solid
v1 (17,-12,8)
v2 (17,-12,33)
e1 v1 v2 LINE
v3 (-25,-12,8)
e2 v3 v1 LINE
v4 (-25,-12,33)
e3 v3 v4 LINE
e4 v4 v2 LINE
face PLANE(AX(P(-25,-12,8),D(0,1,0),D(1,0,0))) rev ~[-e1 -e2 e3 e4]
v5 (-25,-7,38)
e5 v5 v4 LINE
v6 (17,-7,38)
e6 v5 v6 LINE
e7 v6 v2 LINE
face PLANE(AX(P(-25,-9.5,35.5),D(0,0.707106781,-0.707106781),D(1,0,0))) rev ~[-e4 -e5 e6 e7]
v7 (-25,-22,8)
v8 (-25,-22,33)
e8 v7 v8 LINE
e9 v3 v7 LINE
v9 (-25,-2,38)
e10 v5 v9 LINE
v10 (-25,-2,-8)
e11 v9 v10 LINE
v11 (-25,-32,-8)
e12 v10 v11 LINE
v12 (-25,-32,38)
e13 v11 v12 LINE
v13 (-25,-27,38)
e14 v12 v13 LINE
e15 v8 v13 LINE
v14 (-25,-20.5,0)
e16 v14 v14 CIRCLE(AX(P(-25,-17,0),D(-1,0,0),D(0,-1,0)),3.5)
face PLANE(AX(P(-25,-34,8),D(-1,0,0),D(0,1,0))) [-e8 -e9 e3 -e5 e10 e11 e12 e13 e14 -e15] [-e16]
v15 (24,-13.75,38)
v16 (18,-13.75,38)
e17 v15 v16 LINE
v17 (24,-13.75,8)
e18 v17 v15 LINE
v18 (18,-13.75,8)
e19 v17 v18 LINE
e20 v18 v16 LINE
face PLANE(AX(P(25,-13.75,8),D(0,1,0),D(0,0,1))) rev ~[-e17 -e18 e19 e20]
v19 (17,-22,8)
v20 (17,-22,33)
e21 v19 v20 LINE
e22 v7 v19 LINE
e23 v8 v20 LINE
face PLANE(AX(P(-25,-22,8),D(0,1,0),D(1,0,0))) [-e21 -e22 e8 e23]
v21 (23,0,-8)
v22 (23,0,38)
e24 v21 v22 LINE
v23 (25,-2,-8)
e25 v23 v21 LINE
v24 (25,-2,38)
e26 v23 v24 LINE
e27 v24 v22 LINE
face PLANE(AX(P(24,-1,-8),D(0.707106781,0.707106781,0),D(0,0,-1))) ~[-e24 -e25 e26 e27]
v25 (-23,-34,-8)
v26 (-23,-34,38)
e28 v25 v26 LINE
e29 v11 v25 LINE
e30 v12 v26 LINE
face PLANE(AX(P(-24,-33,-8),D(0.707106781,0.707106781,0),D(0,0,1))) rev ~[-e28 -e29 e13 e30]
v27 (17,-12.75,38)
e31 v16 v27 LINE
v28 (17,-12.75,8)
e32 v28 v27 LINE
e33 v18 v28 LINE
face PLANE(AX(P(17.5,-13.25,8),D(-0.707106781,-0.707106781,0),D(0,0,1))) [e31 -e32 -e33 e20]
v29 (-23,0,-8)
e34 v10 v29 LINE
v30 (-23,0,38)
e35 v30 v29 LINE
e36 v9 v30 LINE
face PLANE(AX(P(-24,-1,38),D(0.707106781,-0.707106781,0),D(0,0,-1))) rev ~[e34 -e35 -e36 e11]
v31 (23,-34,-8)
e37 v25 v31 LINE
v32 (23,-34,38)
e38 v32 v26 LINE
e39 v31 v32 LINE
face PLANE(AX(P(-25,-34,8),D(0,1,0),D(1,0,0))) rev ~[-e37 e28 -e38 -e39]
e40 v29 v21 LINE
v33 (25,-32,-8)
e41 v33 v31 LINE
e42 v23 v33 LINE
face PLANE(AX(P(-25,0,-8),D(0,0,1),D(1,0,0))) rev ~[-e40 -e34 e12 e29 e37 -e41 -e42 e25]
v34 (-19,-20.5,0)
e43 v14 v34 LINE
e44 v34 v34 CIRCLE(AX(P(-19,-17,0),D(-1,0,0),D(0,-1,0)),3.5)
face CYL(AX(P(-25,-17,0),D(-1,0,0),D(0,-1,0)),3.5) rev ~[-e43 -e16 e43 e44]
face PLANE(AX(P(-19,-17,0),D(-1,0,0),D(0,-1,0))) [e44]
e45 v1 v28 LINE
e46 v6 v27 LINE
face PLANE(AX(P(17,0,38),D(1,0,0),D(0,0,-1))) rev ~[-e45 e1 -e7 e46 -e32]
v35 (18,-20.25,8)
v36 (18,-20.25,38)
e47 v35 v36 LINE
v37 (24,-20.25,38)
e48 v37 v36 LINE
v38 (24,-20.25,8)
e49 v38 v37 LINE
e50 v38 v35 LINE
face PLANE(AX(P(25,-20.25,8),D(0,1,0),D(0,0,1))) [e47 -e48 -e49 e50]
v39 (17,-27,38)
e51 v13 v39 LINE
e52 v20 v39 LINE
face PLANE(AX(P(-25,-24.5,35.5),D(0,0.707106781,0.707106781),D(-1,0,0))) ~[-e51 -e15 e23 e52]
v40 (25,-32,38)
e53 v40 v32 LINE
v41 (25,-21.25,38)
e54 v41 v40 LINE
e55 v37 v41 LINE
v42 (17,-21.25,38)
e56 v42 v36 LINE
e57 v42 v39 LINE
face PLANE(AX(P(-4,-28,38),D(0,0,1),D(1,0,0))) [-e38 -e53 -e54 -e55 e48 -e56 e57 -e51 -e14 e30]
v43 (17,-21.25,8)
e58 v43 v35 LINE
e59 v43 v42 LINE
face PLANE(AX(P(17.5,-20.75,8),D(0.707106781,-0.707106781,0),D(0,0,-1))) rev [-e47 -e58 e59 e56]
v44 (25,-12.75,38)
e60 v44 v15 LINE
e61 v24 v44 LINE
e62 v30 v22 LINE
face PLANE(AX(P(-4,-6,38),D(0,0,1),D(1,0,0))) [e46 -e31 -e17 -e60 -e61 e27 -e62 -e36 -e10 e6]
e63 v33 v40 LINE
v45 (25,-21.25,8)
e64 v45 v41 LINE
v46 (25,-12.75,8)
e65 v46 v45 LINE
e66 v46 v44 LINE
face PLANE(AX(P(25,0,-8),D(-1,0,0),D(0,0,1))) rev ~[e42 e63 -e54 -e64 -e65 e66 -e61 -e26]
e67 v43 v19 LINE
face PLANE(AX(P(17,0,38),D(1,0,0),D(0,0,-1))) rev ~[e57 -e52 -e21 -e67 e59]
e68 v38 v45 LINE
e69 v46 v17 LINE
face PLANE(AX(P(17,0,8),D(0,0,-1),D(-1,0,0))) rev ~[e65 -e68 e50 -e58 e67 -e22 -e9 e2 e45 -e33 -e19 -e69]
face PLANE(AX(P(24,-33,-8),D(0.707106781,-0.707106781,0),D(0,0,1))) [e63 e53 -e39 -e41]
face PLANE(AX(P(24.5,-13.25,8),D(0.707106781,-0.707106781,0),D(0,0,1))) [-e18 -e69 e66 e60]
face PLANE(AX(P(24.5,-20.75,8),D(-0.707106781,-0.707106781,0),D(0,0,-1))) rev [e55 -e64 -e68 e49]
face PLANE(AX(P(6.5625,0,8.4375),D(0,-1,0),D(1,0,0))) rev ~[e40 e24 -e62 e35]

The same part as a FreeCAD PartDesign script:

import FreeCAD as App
import Part
import Sketcher

V = App.Vector
Q = App.Units.Quantity


def edges_at(feature, points):
    """Names of the edges that pass closest to the given points."""
    edges = feature.Shape.Edges
    near = lambda p: min(range(len(edges)), key=lambda i: edges[i].distToShape(Part.Vertex(*p))[0])
    return sorted({f"Edge{near(p) + 1}" for p in points})


def add_polygon(sketch, points):
    """Adds a closed chain of lines whose ends are joined by coincident constraints."""
    first, n = sketch.GeometryCount, len(points)
    for a, b in zip(points, points[1:] + points[:1]):
        sketch.addGeometry(Part.LineSegment(App.Vector(*a, 0), App.Vector(*b, 0)), False)
    for i in range(n):
        sketch.addConstraint(Sketcher.Constraint("Coincident", first + i, 2, first + (i + 1) % n, 1))

doc = App.newDocument("Part")
body = doc.addObject("PartDesign::Body", "Body")

# Sketch on XZ plane
sketch1 = body.newObject("Sketcher::SketchObject", "Sketch")
sketch1.AttachmentSupport = (doc.getObject("XZ_Plane"), [""])
sketch1.MapMode = "FlatFace"
add_polygon(sketch1, [(-25, 8), (-25, -8), (25, -8), (25, 38), (17, 38), (17, 8)])  # lines 0-5
sketch1.addConstraint(Sketcher.Constraint("Vertical", 0))
sketch1.addConstraint(Sketcher.Constraint("Horizontal", 1))
sketch1.addConstraint(Sketcher.Constraint("Vertical", 2))
sketch1.addConstraint(Sketcher.Constraint("Horizontal", 3))
sketch1.addConstraint(Sketcher.Constraint("Vertical", 4))
sketch1.addConstraint(Sketcher.Constraint("Horizontal", 5))
sketch1.addConstraint(Sketcher.Constraint("Symmetric", 1, 2, 5, 2, -1, 1))
sketch1.addConstraint(Sketcher.Constraint("DistanceX", 1, 1, 1, 2, Q("50 mm")))
sketch1.addConstraint(Sketcher.Constraint("DistanceX", 3, 2, 3, 1, Q("8 mm")))
sketch1.addConstraint(Sketcher.Constraint("DistanceY", 0, 2, 0, 1, Q("16 mm")))
sketch1.addConstraint(Sketcher.Constraint("DistanceY", 2, 1, 2, 2, Q("46 mm")))
pad1 = body.newObject("PartDesign::Pad", "Pad")
pad1.Profile = sketch1
pad1.Length = 34

# Sketch on YZ plane
sketch2 = body.newObject("Sketcher::SketchObject", "Sketch001")
sketch2.AttachmentSupport = (doc.getObject("YZ_Plane"), [""])
sketch2.MapMode = "FlatFace"
sketch2.AttachmentOffset = App.Placement(V(0, 0, 25), App.Rotation())
add_polygon(sketch2, [(-20, 38), (-20, 8), (-14, 8), (-14, 38)])  # lines 0-3
sketch2.addConstraint(Sketcher.Constraint("Vertical", 0))
sketch2.addConstraint(Sketcher.Constraint("Horizontal", 1))
sketch2.addConstraint(Sketcher.Constraint("Vertical", 2))
sketch2.addConstraint(Sketcher.Constraint("Horizontal", 3))
sketch2.addConstraint(Sketcher.Constraint("DistanceY", 0, 2, 0, 1, Q("30 mm")))
sketch2.addConstraint(Sketcher.Constraint("DistanceX", 1, 1, 1, 2, Q("6.5 mm")))
sketch2.addConstraint(Sketcher.Constraint("DistanceY", -1, 1, 0, 2, Q("8 mm")))
sketch2.addConstraint(Sketcher.Constraint("DistanceX", 0, 2, -1, 1, Q("20.25 mm")))
pocket1 = body.newObject("PartDesign::Pocket", "Pocket")
pocket1.Profile = sketch2
pocket1.Type = "ThroughAll"

# Sketch on YZ plane
sketch3 = body.newObject("Sketcher::SketchObject", "Sketch002")
sketch3.AttachmentSupport = (doc.getObject("YZ_Plane"), [""])
sketch3.MapMode = "FlatFace"
sketch3.AttachmentOffset = App.Placement(V(0, 0, -25), App.Rotation())
sketch3.addGeometry(Part.Circle(V(-17, 0, 0), V(0, 0, 1), 3.5), False)
sketch3.addConstraint(Sketcher.Constraint("PointOnObject", 0, 3, -1))
sketch3.addConstraint(Sketcher.Constraint("Diameter", 0, Q("7 mm")))
sketch3.addConstraint(Sketcher.Constraint("DistanceX", 0, 3, -1, 1, Q("17 mm")))
pocket2 = body.newObject("PartDesign::Pocket", "Pocket001")
pocket2.Profile = sketch3
pocket2.Length = 6
pocket2.Reversed = True

# Sketch on XY plane
sketch4 = body.newObject("Sketcher::SketchObject", "Sketch003")
sketch4.AttachmentSupport = (doc.getObject("XY_Plane"), [""])
sketch4.MapMode = "FlatFace"
sketch4.AttachmentOffset = App.Placement(V(0, 0, 8), App.Rotation())
add_polygon(sketch4, [(-25, -22), (-25, -34), (17, -34), (17, -22)])  # lines 0-3
add_polygon(sketch4, [(-25, 0), (-25, -12), (17, -12), (17, 0)])  # lines 4-7
sketch4.addConstraint(Sketcher.Constraint("Vertical", 0))
sketch4.addConstraint(Sketcher.Constraint("Horizontal", 1))
sketch4.addConstraint(Sketcher.Constraint("Vertical", 2))
sketch4.addConstraint(Sketcher.Constraint("Horizontal", 3))
sketch4.addConstraint(Sketcher.Constraint("Vertical", 4))
sketch4.addConstraint(Sketcher.Constraint("Horizontal", 5))
sketch4.addConstraint(Sketcher.Constraint("Vertical", 6))
sketch4.addConstraint(Sketcher.Constraint("Horizontal", 7))
sketch4.addConstraint(Sketcher.Constraint("PointOnObject", 6, 2, -1))
sketch4.addConstraint(Sketcher.Constraint("Vertical", 3, 2, 4, 2))
sketch4.addConstraint(Sketcher.Constraint("Vertical", 2, 2, 5, 2))
sketch4.addConstraint(Sketcher.Constraint("Equal", 2, 4))
sketch4.addConstraint(Sketcher.Constraint("DistanceX", 1, 1, 1, 2, Q("42 mm")))
sketch4.addConstraint(Sketcher.Constraint("DistanceY", 0, 2, 0, 1, Q("12 mm")))
sketch4.addConstraint(Sketcher.Constraint("DistanceX", 0, 2, -1, 1, Q("25 mm")))
sketch4.addConstraint(Sketcher.Constraint("DistanceY", 0, 2, -1, 1, Q("34 mm")))
pad2 = body.newObject("PartDesign::Pad", "Pad001")
pad2.Profile = sketch4
pad2.Length = 30
doc.recompute()

chamfer = body.newObject("PartDesign::Chamfer", "Chamfer")
chamfer.Base = (pad2, edges_at(pad2, [(-4, -22, 38), (-4, -12, 38)]))
chamfer.Size = 5
doc.recompute()

chamfer2 = body.newObject("PartDesign::Chamfer", "Chamfer001")
chamfer2.Base = (chamfer, edges_at(chamfer, [
    (25, -34, 15),
    (25, 0, 15),
    (-25, -34, 15),
    (-25, 0, 15),
]))
chamfer2.Size = 2
doc.recompute()

chamfer3 = body.newObject("PartDesign::Chamfer", "Chamfer002")
chamfer3.Base = (chamfer2, edges_at(chamfer2, [
    (17, -13.75, 23),
    (17, -20.25, 23),
    (25, -13.75, 23),
    (25, -20.25, 23),
]))
chamfer3.Size = 1

doc.recompute()
